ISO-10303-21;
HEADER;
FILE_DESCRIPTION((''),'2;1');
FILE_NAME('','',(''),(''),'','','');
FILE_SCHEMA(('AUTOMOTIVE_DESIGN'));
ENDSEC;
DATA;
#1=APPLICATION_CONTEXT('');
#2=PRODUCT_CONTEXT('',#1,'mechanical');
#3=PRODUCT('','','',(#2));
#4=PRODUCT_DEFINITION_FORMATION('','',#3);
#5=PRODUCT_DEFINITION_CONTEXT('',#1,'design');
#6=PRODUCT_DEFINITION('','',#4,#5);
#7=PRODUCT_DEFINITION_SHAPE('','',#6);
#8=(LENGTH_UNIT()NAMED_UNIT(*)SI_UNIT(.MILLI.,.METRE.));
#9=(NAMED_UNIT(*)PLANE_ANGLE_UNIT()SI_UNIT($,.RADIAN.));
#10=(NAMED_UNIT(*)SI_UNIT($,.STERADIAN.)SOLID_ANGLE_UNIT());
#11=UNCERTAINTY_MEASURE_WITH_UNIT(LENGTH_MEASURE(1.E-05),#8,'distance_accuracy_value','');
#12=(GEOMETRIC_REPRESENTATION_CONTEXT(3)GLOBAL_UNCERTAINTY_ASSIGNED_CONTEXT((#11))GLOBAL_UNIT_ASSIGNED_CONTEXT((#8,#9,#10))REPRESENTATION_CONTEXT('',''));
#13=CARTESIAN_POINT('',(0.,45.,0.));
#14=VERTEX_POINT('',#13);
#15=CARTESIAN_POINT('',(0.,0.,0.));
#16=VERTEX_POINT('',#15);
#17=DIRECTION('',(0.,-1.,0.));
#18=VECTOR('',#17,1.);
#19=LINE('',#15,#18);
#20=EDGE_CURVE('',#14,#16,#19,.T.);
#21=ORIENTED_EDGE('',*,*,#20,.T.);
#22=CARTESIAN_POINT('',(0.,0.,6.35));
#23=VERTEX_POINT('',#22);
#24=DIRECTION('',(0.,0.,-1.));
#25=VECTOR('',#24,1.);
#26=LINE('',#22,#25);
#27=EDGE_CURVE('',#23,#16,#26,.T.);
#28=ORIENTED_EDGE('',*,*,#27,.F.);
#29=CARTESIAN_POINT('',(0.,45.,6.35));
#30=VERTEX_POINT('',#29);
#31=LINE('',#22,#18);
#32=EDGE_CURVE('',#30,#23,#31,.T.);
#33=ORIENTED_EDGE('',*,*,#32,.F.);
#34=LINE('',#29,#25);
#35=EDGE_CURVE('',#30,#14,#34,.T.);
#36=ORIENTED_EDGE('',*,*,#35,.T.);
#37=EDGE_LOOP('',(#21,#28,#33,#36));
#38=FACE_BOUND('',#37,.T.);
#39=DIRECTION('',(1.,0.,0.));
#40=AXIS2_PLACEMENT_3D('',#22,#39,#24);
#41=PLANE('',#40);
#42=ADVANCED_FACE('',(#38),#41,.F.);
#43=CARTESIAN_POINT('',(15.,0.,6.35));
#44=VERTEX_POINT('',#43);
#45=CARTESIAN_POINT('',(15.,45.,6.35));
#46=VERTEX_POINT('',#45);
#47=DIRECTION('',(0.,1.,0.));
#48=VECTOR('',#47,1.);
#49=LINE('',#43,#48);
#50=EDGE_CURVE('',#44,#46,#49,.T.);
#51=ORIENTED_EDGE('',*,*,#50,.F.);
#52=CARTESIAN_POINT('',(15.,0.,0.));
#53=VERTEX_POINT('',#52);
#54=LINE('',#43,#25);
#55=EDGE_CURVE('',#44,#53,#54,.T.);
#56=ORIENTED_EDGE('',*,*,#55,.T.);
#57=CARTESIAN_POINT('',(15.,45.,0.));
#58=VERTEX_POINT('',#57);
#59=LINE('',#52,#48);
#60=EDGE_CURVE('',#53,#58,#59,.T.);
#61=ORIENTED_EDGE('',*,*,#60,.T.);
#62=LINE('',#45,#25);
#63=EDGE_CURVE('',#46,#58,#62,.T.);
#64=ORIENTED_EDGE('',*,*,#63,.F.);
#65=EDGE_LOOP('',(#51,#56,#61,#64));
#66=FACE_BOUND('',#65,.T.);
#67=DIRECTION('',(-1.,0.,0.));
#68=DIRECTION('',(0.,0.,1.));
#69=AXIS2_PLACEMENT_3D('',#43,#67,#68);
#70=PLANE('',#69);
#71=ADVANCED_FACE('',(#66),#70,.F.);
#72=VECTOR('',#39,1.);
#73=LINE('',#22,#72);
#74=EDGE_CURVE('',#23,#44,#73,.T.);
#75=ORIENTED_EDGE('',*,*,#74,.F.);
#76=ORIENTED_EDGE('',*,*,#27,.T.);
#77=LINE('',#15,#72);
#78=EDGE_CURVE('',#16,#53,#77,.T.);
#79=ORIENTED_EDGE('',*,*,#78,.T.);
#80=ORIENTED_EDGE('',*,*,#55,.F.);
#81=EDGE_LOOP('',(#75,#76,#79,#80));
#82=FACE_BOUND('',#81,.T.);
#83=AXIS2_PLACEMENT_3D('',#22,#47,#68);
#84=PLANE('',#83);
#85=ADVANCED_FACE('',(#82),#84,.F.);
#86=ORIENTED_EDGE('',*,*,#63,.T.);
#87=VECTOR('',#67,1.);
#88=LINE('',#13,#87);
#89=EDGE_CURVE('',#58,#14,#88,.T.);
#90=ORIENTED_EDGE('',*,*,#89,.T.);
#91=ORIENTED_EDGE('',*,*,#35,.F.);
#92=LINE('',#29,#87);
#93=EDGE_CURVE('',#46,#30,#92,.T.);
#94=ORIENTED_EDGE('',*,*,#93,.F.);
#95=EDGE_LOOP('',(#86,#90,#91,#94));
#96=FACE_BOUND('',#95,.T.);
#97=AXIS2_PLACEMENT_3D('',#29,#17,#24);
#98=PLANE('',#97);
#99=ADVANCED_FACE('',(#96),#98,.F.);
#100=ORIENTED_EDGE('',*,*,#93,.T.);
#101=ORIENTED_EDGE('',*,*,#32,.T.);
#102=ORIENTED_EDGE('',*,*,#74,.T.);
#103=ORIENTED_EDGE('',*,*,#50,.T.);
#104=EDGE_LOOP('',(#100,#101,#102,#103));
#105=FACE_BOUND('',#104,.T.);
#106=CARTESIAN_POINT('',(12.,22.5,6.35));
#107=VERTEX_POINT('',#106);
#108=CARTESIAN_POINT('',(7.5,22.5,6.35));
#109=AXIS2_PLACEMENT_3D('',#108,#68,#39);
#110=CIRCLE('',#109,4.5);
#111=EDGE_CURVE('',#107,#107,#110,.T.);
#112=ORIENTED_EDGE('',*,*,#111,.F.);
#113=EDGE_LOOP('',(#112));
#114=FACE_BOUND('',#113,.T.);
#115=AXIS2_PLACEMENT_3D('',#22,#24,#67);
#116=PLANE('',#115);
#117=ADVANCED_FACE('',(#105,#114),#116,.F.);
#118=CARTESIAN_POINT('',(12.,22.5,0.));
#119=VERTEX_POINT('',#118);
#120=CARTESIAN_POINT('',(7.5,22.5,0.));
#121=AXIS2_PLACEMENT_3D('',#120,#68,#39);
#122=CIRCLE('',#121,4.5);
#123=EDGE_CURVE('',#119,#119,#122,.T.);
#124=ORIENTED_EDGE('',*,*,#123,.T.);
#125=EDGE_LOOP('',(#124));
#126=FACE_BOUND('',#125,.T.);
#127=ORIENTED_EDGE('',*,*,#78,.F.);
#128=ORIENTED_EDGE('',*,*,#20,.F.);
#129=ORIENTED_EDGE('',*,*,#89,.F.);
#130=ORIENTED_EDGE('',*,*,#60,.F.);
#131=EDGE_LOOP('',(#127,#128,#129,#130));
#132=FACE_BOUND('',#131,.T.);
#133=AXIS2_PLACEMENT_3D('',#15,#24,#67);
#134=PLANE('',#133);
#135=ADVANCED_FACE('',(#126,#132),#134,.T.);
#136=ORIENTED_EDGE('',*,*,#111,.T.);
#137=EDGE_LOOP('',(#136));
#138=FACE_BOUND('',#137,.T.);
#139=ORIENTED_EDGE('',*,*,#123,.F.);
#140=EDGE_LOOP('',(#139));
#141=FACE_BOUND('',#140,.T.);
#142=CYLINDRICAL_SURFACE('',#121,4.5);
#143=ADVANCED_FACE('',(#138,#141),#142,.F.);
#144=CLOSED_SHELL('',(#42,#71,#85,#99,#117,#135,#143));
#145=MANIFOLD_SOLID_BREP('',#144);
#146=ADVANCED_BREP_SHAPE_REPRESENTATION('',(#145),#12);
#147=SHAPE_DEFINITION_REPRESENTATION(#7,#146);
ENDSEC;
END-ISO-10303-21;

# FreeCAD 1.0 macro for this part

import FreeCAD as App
import Part
import Sketcher
from FreeCAD import Vector


def add_polygon(sketch, points):
    """Adds a closed chain of lines whose ends are joined by coincident constraints."""
    first, n = sketch.GeometryCount, len(points)
    for a, b in zip(points, points[1:] + points[:1]):
        sketch.addGeometry(Part.LineSegment(App.Vector(*a, 0), App.Vector(*b, 0)), False)
    for i in range(n):
        sketch.addConstraint(Sketcher.Constraint("Coincident", first + i, 2, first + (i + 1) % n, 1))

doc = App.newDocument("Part")
body = doc.addObject("PartDesign::Body", "Body")

sketch1 = body.newObject("Sketcher::SketchObject", "Sketch")
sketch1.AttachmentSupport = (doc.getObject("XY_Plane"), [""])
sketch1.MapMode = "FlatFace"
add_polygon(sketch1, [(0, 45), (0, 0), (15, 0), (15, 45)])
sketch1.addConstraint(Sketcher.Constraint("Vertical", 0))
sketch1.addConstraint(Sketcher.Constraint("Horizontal", 1))
sketch1.addConstraint(Sketcher.Constraint("Vertical", 2))
sketch1.addConstraint(Sketcher.Constraint("Horizontal", 3))
sketch1.addConstraint(Sketcher.Constraint("Coincident", 0, 2, -1, 1))
sketch1.addConstraint(Sketcher.Constraint("DistanceX", 1, 1, 1, 2, 15.0))
sketch1.addConstraint(Sketcher.Constraint("DistanceY", 0, 2, 0, 1, 45.0))
pad1 = body.newObject("PartDesign::Pad", "Pad")
pad1.Profile = sketch1
pad1.Length = 6.35

sketch2 = body.newObject("Sketcher::SketchObject", "Sketch001")
sketch2.AttachmentSupport = (doc.getObject("XY_Plane"), [""])
sketch2.MapMode = "FlatFace"
sketch2.AttachmentOffset = App.Placement(Vector(0, 0, 6.35), App.Rotation())
sketch2.addGeometry(Part.Circle(Vector(7.5, 22.5, 0), Vector(0, 0, 1), 4.5), False)
sketch2.addConstraint(Sketcher.Constraint("Diameter", 0, 9.0))
sketch2.addConstraint(Sketcher.Constraint("DistanceX", -1, 1, 0, 3, 7.5))
sketch2.addConstraint(Sketcher.Constraint("DistanceY", -1, 1, 0, 3, 22.5))
pocket1 = body.newObject("PartDesign::Pocket", "Pocket")
pocket1.Profile = sketch2
pocket1.Type = "ThroughAll"

doc.recompute()
